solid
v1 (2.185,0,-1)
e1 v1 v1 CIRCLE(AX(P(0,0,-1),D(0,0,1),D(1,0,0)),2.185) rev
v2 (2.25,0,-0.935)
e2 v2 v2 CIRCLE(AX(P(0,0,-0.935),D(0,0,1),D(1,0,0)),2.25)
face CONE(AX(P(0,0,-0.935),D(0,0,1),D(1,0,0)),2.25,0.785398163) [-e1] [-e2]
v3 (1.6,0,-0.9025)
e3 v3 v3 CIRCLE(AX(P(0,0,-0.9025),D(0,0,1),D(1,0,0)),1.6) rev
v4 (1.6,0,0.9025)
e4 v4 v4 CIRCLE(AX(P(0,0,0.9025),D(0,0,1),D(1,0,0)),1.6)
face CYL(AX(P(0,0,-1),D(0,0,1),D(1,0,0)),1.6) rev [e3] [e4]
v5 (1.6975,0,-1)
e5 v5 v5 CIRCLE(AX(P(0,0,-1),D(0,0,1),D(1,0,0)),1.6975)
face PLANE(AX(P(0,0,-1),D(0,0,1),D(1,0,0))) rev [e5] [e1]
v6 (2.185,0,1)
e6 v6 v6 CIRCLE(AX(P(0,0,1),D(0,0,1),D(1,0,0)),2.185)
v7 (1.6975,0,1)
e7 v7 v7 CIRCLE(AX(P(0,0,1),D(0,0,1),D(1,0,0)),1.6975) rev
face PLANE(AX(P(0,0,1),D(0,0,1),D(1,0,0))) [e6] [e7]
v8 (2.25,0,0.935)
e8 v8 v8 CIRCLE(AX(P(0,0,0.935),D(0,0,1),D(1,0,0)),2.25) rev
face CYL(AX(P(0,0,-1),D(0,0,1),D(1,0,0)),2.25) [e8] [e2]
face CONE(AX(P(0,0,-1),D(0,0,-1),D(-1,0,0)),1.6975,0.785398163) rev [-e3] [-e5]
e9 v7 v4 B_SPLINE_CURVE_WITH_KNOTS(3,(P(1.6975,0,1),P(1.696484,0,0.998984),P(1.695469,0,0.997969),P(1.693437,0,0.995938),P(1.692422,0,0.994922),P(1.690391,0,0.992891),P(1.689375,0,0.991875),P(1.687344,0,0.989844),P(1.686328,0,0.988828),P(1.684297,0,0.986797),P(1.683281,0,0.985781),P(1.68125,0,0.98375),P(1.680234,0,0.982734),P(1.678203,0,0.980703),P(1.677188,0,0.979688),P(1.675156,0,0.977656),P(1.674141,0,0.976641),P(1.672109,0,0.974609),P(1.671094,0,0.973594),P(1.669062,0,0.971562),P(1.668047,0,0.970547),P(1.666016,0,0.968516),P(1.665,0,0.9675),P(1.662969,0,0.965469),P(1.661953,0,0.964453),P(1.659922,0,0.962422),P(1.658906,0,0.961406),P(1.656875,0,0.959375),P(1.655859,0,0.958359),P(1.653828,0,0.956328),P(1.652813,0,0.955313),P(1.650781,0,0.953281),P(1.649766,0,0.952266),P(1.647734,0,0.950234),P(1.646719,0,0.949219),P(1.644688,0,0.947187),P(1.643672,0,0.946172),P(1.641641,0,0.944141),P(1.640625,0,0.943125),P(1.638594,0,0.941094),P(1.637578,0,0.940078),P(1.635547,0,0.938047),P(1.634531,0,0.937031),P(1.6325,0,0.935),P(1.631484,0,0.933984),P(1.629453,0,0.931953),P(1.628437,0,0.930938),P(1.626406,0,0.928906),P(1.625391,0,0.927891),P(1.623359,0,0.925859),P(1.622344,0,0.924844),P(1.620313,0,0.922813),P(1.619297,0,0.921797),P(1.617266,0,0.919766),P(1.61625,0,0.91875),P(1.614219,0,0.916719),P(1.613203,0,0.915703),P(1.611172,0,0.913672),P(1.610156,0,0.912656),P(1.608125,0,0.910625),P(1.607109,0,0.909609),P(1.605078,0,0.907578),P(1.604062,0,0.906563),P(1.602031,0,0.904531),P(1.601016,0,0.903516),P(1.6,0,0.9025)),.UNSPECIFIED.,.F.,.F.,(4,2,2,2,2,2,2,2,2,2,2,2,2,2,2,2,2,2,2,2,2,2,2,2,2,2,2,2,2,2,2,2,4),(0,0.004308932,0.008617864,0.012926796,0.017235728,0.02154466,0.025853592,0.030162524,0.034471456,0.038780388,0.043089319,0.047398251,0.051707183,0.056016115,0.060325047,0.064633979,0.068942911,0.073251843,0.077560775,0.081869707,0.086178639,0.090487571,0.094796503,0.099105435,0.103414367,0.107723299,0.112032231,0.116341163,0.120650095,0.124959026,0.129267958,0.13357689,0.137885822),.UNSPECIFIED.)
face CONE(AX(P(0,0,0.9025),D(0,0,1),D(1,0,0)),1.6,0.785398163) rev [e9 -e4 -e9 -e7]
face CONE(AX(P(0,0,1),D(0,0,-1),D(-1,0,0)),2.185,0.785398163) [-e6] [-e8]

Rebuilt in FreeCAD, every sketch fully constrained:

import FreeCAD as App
import Part
import Sketcher

V = App.Vector


def edges_at(feature, points):
    """Names of the edges that pass closest to the given points."""
    edges = feature.Shape.Edges
    near = lambda p: min(range(len(edges)), key=lambda i: edges[i].distToShape(Part.Vertex(*p))[0])
    return sorted({f"Edge{near(p) + 1}" for p in points})

doc = App.newDocument("Part")
body = doc.addObject("PartDesign::Body", "Body")

# Sketch on XY plane
sketch1 = body.newObject("Sketcher::SketchObject", "Sketch")
sketch1.AttachmentSupport = (doc.getObject("XY_Plane"), [""])
sketch1.MapMode = "FlatFace"
sketch1.addGeometry([
    Part.Circle(V(0, 0, 0), V(0, 0, 1), 2.2),
    Part.Circle(V(0, 0, 0), V(0, 0, 1), 1.6),
], False)
sketch1.addConstraint([
    Sketcher.Constraint("Coincident", 0, 3, -1, 1),
    Sketcher.Constraint("Coincident", 1, 3, -1, 1),
    Sketcher.Constraint("Diameter", 0, 4.5),
    Sketcher.Constraint("Diameter", 1, 3.2),
])
pad1 = body.newObject("PartDesign::Pad", "Pad")
pad1.Profile = sketch1
pad1.Type = "TwoLengths"
pad1.Length = 1
pad1.Length2 = 1
doc.recompute()

chamfer = body.newObject("PartDesign::Chamfer", "Chamfer")
chamfer.Base = (pad1, edges_at(pad1, [(-2.25, 0, -1), (-2.25, 0, 1)]))
chamfer.Size = 0.065
doc.recompute()

chamfer2 = body.newObject("PartDesign::Chamfer", "Chamfer001")
chamfer2.Base = (chamfer, edges_at(chamfer, [(-1.6, 0, -1), (-1.6, 0, 1)]))
chamfer2.Size = 0.0975

doc.recompute()
